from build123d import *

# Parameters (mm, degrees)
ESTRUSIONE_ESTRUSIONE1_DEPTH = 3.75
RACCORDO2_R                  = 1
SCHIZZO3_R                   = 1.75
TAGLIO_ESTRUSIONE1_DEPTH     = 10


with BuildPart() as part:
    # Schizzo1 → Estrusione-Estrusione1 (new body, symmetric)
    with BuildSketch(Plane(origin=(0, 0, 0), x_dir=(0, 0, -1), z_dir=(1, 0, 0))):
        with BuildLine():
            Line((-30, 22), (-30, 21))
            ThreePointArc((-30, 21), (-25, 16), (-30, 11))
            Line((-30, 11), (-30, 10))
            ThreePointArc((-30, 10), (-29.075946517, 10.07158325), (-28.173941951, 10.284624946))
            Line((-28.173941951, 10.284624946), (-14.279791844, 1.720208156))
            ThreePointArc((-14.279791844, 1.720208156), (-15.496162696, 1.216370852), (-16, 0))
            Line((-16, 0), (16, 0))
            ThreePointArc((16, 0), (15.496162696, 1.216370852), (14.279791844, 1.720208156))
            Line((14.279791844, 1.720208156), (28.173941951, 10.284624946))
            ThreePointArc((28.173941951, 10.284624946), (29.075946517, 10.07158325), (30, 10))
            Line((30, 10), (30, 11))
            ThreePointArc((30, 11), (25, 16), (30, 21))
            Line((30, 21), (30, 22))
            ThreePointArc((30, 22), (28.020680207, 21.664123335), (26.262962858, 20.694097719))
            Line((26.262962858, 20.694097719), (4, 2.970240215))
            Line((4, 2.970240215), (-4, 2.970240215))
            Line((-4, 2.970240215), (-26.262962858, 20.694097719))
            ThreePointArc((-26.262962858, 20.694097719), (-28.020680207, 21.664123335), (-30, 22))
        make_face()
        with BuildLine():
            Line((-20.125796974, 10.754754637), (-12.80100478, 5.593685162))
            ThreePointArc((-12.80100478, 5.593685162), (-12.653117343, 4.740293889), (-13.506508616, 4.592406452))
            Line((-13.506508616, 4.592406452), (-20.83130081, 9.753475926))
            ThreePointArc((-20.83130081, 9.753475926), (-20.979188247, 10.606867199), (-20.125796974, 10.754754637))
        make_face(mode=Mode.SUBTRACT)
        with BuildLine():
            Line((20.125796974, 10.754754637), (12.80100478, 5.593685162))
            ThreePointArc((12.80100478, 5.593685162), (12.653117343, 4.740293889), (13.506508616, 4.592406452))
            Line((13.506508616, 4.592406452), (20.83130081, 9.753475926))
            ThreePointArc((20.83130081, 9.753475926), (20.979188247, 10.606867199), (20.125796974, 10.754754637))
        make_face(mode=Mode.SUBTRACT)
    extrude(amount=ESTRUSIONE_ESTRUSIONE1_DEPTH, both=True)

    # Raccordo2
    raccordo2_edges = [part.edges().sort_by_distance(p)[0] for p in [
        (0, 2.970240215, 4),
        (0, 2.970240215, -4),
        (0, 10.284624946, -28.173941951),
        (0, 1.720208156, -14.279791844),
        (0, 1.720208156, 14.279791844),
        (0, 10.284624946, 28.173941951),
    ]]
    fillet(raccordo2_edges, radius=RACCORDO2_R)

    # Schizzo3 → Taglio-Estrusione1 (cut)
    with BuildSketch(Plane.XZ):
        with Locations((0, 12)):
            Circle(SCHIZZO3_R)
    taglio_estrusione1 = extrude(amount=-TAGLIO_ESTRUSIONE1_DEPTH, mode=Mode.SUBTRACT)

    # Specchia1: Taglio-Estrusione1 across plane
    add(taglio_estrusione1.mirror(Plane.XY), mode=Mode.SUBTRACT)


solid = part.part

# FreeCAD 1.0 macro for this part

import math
import FreeCAD as App
import Part
import Sketcher
from FreeCAD import Vector
Q = App.Units.Quantity


def edges_at(feature, points):
    """Names of the edges that pass closest to the given points."""
    edges = feature.Shape.Edges
    near = lambda p: min(range(len(edges)), key=lambda i: edges[i].distToShape(Part.Vertex(*p))[0])
    return sorted({f"Edge{near(p) + 1}" for p in points})

doc = App.newDocument("Part")
params = doc.addObject("Spreadsheet::Sheet", "Params")
for row, (alias, value) in enumerate([
    ("sketch1_radius", "5 mm"),
    ("sketch1_radius2", "6 mm"),
    ("sketch1_height", "32 mm"),
    ("sketch1_height2", "8 mm"),
    ("pad1_length", "7.5 mm"),
    ("fillet_radius", "1 mm"),
    ("sketch2_diameter", "3.5 mm"),
    ("pocket1_length", "10 mm"),
], start=1):
    params.set(f"A{row}", alias)
    params.set(f"B{row}", "=" + value)
    params.setAlias(f"B{row}", alias)

body = doc.addObject("PartDesign::Body", "Body")

# Sketch on YZ plane
sketch1 = body.newObject("Sketcher::SketchObject", "Sketch")
sketch1.AttachmentSupport = (doc.getObject("YZ_Plane"), [""])
sketch1.MapMode = "FlatFace"
sketch1.addGeometry(Part.LineSegment(Vector(22, 30, 0), Vector(21, 30, 0)), False)
sketch1.addGeometry(Part.ArcOfCircle(Part.Circle(Vector(16, 30, 0), Vector(0, 0, 1), 5), math.radians(180), math.radians(360)), False)
sketch1.addGeometry(Part.LineSegment(Vector(11, 30, 0), Vector(10, 30, 0)), False)
sketch1.addGeometry(Part.ArcOfCircle(Part.Circle(Vector(16, 30, 0), Vector(0, 0, 1), 6), math.radians(180), math.radians(197.72)), False)
sketch1.addGeometry(Part.LineSegment(Vector(10.3, 28.2, 0), Vector(1.7, 14.3, 0)), False)
sketch1.addGeometry(Part.ArcOfCircle(Part.Circle(Vector(0, 14.3, 0), Vector(0, 0, 1), 1.7), math.radians(0), math.radians(90)), False)
sketch1.addGeometry(Part.LineSegment(Vector(0, 16, 0), Vector(0, -16, 0)), False)
sketch1.addGeometry(Part.ArcOfCircle(Part.Circle(Vector(0, -14.3, 0), Vector(0, 0, 1), 1.7), math.radians(-90), math.radians(0)), False)
sketch1.addGeometry(Part.LineSegment(Vector(1.7, -14.3, 0), Vector(10.3, -28.2, 0)), False)
sketch1.addGeometry(Part.ArcOfCircle(Part.Circle(Vector(16, -30, 0), Vector(0, 0, 1), 6), math.radians(162.28), math.radians(180)), False)
sketch1.addGeometry(Part.LineSegment(Vector(10, -30, 0), Vector(11, -30, 0)), False)
sketch1.addGeometry(Part.ArcOfCircle(Part.Circle(Vector(16, -30, 0), Vector(0, 0, 1), 5), math.radians(0), math.radians(180)), False)
sketch1.addGeometry(Part.LineSegment(Vector(21, -30, 0), Vector(22, -30, 0)), False)
sketch1.addGeometry(Part.ArcOfCircle(Part.Circle(Vector(16, -30, 0), Vector(0, 0, 1), 6), math.radians(0), math.radians(39)), False)
sketch1.addGeometry(Part.LineSegment(Vector(20.7, -26.3, 0), Vector(3, -4, 0)), False)
sketch1.addGeometry(Part.LineSegment(Vector(3, -4, 0), Vector(3, 4, 0)), False)
sketch1.addGeometry(Part.LineSegment(Vector(3, 4, 0), Vector(20.7, 26.3, 0)), False)
sketch1.addGeometry(Part.ArcOfCircle(Part.Circle(Vector(16, 30, 0), Vector(0, 0, 1), 6), math.radians(-39), math.radians(0)), False)
sketch1.addGeometry(Part.ArcOfCircle(Part.Circle(Vector(10.3, 20.5, 0), Vector(0, 0, 1), 0.6), math.radians(-35), math.radians(145)), False)
sketch1.addGeometry(Part.LineSegment(Vector(10.8, 20.1, 0), Vector(5.6, 12.8, 0)), False)
sketch1.addGeometry(Part.ArcOfCircle(Part.Circle(Vector(5.1, 13.2, 0), Vector(0, 0, 1), 0.6), math.radians(145), math.radians(325)), False)
sketch1.addGeometry(Part.LineSegment(Vector(4.6, 13.5, 0), Vector(9.8, 20.8, 0)), False)
sketch1.addGeometry(Part.LineSegment(Vector(5.6, -12.8, 0), Vector(10.8, -20.1, 0)), False)
sketch1.addGeometry(Part.ArcOfCircle(Part.Circle(Vector(10.3, -20.5, 0), Vector(0, 0, 1), 0.6), math.radians(-145), math.radians(35)), False)
sketch1.addGeometry(Part.LineSegment(Vector(9.8, -20.8, 0), Vector(4.6, -13.5, 0)), False)
sketch1.addGeometry(Part.ArcOfCircle(Part.Circle(Vector(5.1, -13.2, 0), Vector(0, 0, 1), 0.6), math.radians(35), math.radians(215)), False)
sketch1.addConstraint(Sketcher.Constraint("Coincident", 0, 2, 1, 2))
sketch1.addConstraint(Sketcher.Constraint("Coincident", 1, 1, 2, 1))
sketch1.addConstraint(Sketcher.Constraint("Coincident", 2, 2, 3, 1))
sketch1.addConstraint(Sketcher.Constraint("Coincident", 3, 2, 4, 1))
sketch1.addConstraint(Sketcher.Constraint("Coincident", 4, 2, 5, 1))
sketch1.addConstraint(Sketcher.Constraint("Coincident", 5, 2, 6, 1))
sketch1.addConstraint(Sketcher.Constraint("Coincident", 6, 2, 7, 1))
sketch1.addConstraint(Sketcher.Constraint("Coincident", 7, 2, 8, 1))
sketch1.addConstraint(Sketcher.Constraint("Coincident", 8, 2, 9, 1))
sketch1.addConstraint(Sketcher.Constraint("Coincident", 9, 2, 10, 1))
sketch1.addConstraint(Sketcher.Constraint("Coincident", 10, 2, 11, 2))
sketch1.addConstraint(Sketcher.Constraint("Coincident", 11, 1, 12, 1))
sketch1.addConstraint(Sketcher.Constraint("Coincident", 12, 2, 13, 1))
sketch1.addConstraint(Sketcher.Constraint("Tangent", 13, 2, 14, 1))
sketch1.addConstraint(Sketcher.Constraint("Coincident", 14, 2, 15, 1))
sketch1.addConstraint(Sketcher.Constraint("Coincident", 15, 2, 16, 1))
sketch1.addConstraint(Sketcher.Constraint("Tangent", 16, 2, 17, 1))
sketch1.addConstraint(Sketcher.Constraint("Coincident", 17, 2, 0, 1))
sketch1.addConstraint(Sketcher.Constraint("Tangent", 18, 1, 19, 1))
sketch1.addConstraint(Sketcher.Constraint("Tangent", 19, 2, 20, 2))
sketch1.addConstraint(Sketcher.Constraint("Tangent", 20, 1, 21, 1))
sketch1.addConstraint(Sketcher.Constraint("Tangent", 21, 2, 18, 2))
sketch1.addConstraint(Sketcher.Constraint("Tangent", 22, 2, 23, 2))
sketch1.addConstraint(Sketcher.Constraint("Tangent", 23, 1, 24, 1))
sketch1.addConstraint(Sketcher.Constraint("Tangent", 24, 2, 25, 2))
sketch1.addConstraint(Sketcher.Constraint("Tangent", 25, 1, 22, 1))
sketch1.addConstraint(Sketcher.Constraint("Horizontal", 0))
sketch1.addConstraint(Sketcher.Constraint("Horizontal", 2))
sketch1.addConstraint(Sketcher.Constraint("Vertical", 6))
sketch1.addConstraint(Sketcher.Constraint("Horizontal", 10))
sketch1.addConstraint(Sketcher.Constraint("Horizontal", 12))
sketch1.addConstraint(Sketcher.Constraint("Vertical", 15))
sketch1.addConstraint(Sketcher.Constraint("Coincident", 3, 3, 1, 3))
sketch1.addConstraint(Sketcher.Constraint("Coincident", 11, 3, 9, 3))
sketch1.addConstraint(Sketcher.Constraint("Coincident", 13, 3, 9, 3))
sketch1.addConstraint(Sketcher.Constraint("Coincident", 17, 3, 1, 3))
sketch1.addConstraint(Sketcher.Constraint("Equal", 5, 7))
sketch1.addConstraint(Sketcher.Constraint("Equal", 3, 9))
sketch1.addConstraint(Sketcher.Constraint("Equal", 1, 11))
sketch1.addConstraint(Sketcher.Constraint("Equal", 9, 13))
sketch1.addConstraint(Sketcher.Constraint("Equal", 13, 17))
sketch1.addConstraint(Sketcher.Constraint("Equal", 18, 20))
sketch1.addConstraint(Sketcher.Constraint("Equal", 20, 23))
sketch1.addConstraint(Sketcher.Constraint("Equal", 23, 25))
sketch1.addConstraint(Sketcher.Constraint("Symmetric", 5, 3, 7, 3, -1, 1))
sketch1.addConstraint(Sketcher.Constraint("Symmetric", 1, 3, 9, 3, -1))
sketch1.addConstraint(Sketcher.Constraint("Symmetric", 18, 3, 23, 3, -1))
sketch1.addConstraint(Sketcher.Constraint("Symmetric", 20, 3, 25, 3, -1))
sketch1.addConstraint(Sketcher.Constraint("Symmetric", 4, 2, 7, 2, -1))
sketch1.addConstraint(Sketcher.Constraint("PointOnObject", 5, 2, -2))
sketch1.addConstraint(Sketcher.Constraint("Horizontal", 17, 3, 0, 2))
sketch1.addConstraint(Sketcher.Constraint("Horizontal", 0, 2, 1, 1))
sketch1.addConstraint(Sketcher.Constraint("Horizontal", 5, 3, 4, 2))
sketch1.addConstraint(Sketcher.Constraint("Horizontal", 13, 3, 9, 2))
sketch1.addConstraint(Sketcher.Constraint("Horizontal", 10, 2, 11, 1))
sketch1.addConstraint(Sketcher.Constraint("Vertical", 3, 2, 8, 2))
sketch1.addConstraint(Sketcher.Constraint("Vertical", 13, 2, 16, 2))
sketch1.addConstraint(Sketcher.Constraint("Radius", 1, Q("5 mm")))
sketch1.addConstraint(Sketcher.Constraint("Radius", 3, Q("6 mm")))
sketch1.addConstraint(Sketcher.Constraint("DistanceY", 6, 2, 6, 1, Q("32 mm")))
sketch1.addConstraint(Sketcher.Constraint("DistanceY", 15, 1, 15, 2, Q("8 mm")))
sketch1.addConstraint(Sketcher.Constraint("DistanceX", -1, 1, 1, 3, Q("16 mm")))
sketch1.addConstraint(Sketcher.Constraint("DistanceY", -1, 1, 1, 3, Q("30 mm")))
sketch1.addConstraint(Sketcher.Constraint("Radius", 5, Q("1.720208 mm")))
sketch1.addConstraint(Sketcher.Constraint("Radius", 18, Q("0.612433 mm")))
sketch1.addConstraint(Sketcher.Constraint("DistanceY", -1, 1, 21, 2, Q("20.831301 mm")))
sketch1.addConstraint(Sketcher.Constraint("DistanceX", 4, 2, 20, 1, Q("2.872198 mm")))
sketch1.addConstraint(Sketcher.Constraint("Distance", 4, Q("16.321662 mm")))
sketch1.addConstraint(Sketcher.Constraint("Distance", 14, Q("28.456539 mm")))
sketch1.addConstraint(Sketcher.Constraint("DistanceY", -1, 1, 18, 3, Q("20.478549 mm")))
sketch1.addConstraint(Sketcher.Constraint("DistanceY", -1, 1, 20, 1, Q("13.506509 mm")))
sketch1.setExpression("Constraints[57]", "Params.sketch1_radius")
sketch1.setExpression("Constraints[58]", "Params.sketch1_radius2")
sketch1.setExpression("Constraints[59]", "Params.sketch1_height")
sketch1.setExpression("Constraints[60]", "Params.sketch1_height2")
pad1 = body.newObject("PartDesign::Pad", "Pad")
pad1.Profile = sketch1
pad1.setExpression("Length", "Params.pad1_length")
pad1.Midplane = True
doc.recompute()

fillet = body.newObject("PartDesign::Fillet", "Fillet")
fillet.Base = (pad1, edges_at(pad1, [
    (0, 2.97, 4),
    (0, 2.97, -4),
    (0, 10.285, -28.174),
    (0, 1.72, -14.28),
    (0, 1.72, 14.28),
    (0, 10.285, 28.174),
]))
fillet.setExpression("Radius", "Params.fillet_radius")

# Sketch on XZ plane
sketch2 = body.newObject("Sketcher::SketchObject", "Sketch001")
sketch2.AttachmentSupport = (doc.getObject("XZ_Plane"), [""])
sketch2.MapMode = "FlatFace"
sketch2.addGeometry(Part.Circle(Vector(0, 12, 0), Vector(0, 0, 1), 1.8), False)
sketch2.addConstraint(Sketcher.Constraint("PointOnObject", 0, 3, -2))
sketch2.addConstraint(Sketcher.Constraint("Diameter", 0, Q("3.5 mm")))
sketch2.addConstraint(Sketcher.Constraint("DistanceY", -1, 1, 0, 3, Q("12 mm")))
sketch2.setExpression("Constraints[1]", "Params.sketch2_diameter")
pocket1 = body.newObject("PartDesign::Pocket", "Pocket")
pocket1.Profile = sketch2
pocket1.setExpression("Length", "Params.pocket1_length")
doc.recompute()

mirrored = body.newObject("PartDesign::Mirrored", "Mirrored")
mirrored.Originals = [pocket1]
mirrored.MirrorPlane = (doc.getObject("XY_Plane"), [""])
body.Tip = mirrored

doc.recompute()
